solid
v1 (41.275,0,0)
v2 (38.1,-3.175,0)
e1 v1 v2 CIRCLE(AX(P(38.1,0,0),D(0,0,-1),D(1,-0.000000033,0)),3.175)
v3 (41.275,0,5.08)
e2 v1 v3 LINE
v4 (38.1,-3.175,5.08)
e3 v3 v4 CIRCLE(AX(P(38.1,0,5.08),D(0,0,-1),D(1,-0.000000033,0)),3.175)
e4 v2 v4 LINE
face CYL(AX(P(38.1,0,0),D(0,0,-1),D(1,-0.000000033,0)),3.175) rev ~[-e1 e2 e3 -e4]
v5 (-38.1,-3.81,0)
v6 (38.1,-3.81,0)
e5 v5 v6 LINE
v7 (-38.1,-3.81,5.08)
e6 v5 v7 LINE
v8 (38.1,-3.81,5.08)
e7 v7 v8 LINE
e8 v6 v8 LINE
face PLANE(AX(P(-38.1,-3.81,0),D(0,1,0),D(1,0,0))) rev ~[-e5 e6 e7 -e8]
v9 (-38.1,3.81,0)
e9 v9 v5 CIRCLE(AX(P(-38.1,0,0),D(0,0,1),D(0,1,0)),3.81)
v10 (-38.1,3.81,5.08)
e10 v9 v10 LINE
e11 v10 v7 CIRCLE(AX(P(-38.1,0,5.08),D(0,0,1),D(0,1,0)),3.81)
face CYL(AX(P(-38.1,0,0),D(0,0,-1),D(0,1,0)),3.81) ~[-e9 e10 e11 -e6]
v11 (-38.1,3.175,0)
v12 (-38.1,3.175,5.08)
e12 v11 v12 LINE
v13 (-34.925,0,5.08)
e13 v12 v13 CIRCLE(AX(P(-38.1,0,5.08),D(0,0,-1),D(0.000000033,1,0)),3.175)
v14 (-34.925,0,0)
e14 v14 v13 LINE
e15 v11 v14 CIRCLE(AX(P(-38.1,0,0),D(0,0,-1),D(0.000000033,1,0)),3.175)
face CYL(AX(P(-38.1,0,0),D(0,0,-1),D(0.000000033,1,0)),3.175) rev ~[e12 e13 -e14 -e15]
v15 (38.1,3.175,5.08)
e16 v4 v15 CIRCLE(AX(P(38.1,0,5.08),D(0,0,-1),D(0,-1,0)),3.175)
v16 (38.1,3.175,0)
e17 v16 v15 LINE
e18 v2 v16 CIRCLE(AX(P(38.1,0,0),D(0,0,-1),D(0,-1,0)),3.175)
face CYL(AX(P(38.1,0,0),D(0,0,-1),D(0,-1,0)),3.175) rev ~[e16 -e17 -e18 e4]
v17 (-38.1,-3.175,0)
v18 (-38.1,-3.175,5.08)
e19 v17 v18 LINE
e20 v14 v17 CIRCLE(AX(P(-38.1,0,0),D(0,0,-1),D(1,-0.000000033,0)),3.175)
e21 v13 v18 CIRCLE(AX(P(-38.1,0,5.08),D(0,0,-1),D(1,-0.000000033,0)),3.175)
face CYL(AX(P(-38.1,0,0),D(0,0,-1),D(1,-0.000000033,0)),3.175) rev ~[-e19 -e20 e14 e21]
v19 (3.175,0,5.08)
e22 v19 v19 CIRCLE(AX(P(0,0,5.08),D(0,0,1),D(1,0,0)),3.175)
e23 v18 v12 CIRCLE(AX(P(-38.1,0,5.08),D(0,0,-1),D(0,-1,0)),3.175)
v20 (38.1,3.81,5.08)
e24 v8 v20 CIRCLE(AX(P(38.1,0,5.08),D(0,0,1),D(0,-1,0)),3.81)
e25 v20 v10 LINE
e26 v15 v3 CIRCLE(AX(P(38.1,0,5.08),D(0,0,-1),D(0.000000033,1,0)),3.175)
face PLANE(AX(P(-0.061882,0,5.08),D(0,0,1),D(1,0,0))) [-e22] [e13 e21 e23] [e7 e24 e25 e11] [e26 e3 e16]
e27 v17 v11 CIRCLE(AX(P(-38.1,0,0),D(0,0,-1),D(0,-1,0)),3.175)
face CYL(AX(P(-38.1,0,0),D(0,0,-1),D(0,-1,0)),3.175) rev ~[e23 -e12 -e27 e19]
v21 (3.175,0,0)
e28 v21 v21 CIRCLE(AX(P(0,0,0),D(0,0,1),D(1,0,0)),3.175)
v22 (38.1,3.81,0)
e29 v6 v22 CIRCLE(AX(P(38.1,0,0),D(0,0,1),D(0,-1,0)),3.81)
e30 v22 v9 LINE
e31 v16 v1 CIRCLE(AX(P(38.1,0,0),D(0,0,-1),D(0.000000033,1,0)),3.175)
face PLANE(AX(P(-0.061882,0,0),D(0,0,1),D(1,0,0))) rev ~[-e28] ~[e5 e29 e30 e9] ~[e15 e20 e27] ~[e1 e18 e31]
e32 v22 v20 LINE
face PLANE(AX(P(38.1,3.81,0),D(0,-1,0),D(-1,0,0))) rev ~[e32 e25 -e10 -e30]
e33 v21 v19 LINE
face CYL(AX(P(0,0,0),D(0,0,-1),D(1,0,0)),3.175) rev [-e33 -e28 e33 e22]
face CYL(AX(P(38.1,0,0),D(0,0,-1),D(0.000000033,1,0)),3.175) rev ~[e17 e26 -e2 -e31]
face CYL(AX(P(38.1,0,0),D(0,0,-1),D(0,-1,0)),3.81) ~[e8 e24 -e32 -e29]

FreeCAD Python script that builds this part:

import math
import FreeCAD as App
import Part
import Sketcher

V = App.Vector
Q = App.Units.Quantity

doc = App.newDocument("Part")
params = doc.addObject("Spreadsheet::Sheet", "Params")
for row, (alias, value) in enumerate([
    ("sketch1_diameter", "0.25 in"),
    ("sketch1_width", "3 in"),
    ("sketch1_radius", "0.15 in"),
    ("pad1_length", "0.2 in"),
], start=1):
    params.set(f"A{row}", alias)
    params.set(f"B{row}", "=" + value)
    params.setAlias(f"B{row}", alias)

body = doc.addObject("PartDesign::Body", "Body")

sketch1 = body.newObject("Sketcher::SketchObject", "Sketch")
sketch1.AttachmentSupport = (doc.getObject("XY_Plane"), [""])
sketch1.MapMode = "FlatFace"
sketch1.addGeometry([
    Part.LineSegment(V(-38.1, -3.81, 0), V(38.1, -3.81, 0)),
    Part.ArcOfCircle(Part.Circle(V(38.1, 0, 0), V(0, 0, 1), 3.81), math.radians(-90), math.radians(90)),
    Part.LineSegment(V(38.1, 3.81, 0), V(-38.1, 3.81, 0)),
    Part.ArcOfCircle(Part.Circle(V(-38.1, 0, 0), V(0, 0, 1), 3.81), math.radians(90), math.radians(270)),
    Part.ArcOfCircle(Part.Circle(V(-38.1, 0, 0), V(0, 0, 1), 3.175), math.radians(0.000002), math.radians(89.999998)),
    Part.ArcOfCircle(Part.Circle(V(-38.1, 0, 0), V(0, 0, 1), 3.175), math.radians(-89.999998), math.radians(-0.000002)),
    Part.ArcOfCircle(Part.Circle(V(-38.1, 0, 0), V(0, 0, 1), 3.175), math.radians(90), math.radians(270)),
    Part.ArcOfCircle(Part.Circle(V(38.1, 0, 0), V(0, 0, 1), 3.175), math.radians(90), math.radians(270)),
    Part.ArcOfCircle(Part.Circle(V(38.1, 0, 0), V(0, 0, 1), 3.175), math.radians(0.000002), math.radians(89.999998)),
    Part.ArcOfCircle(Part.Circle(V(38.1, 0, 0), V(0, 0, 1), 3.175), math.radians(-89.999998), math.radians(-0.000002)),
    Part.Circle(V(0, 0, 0), V(0, 0, 1), 3.175),
], False)
sketch1.addConstraint([
    Sketcher.Constraint("Tangent", 0, 2, 1, 1),
    Sketcher.Constraint("Tangent", 1, 2, 2, 1),
    Sketcher.Constraint("Tangent", 2, 2, 3, 1),
    Sketcher.Constraint("Tangent", 3, 2, 0, 1),
    Sketcher.Constraint("Tangent", 4, 1, 5, 2),
    Sketcher.Constraint("Tangent", 5, 1, 6, 2),
    Sketcher.Constraint("Tangent", 6, 1, 4, 2),
    Sketcher.Constraint("Tangent", 7, 1, 8, 2),
    Sketcher.Constraint("Tangent", 8, 1, 9, 2),
    Sketcher.Constraint("Tangent", 9, 1, 7, 2),
    Sketcher.Constraint("Horizontal", 0),
    Sketcher.Constraint("Horizontal", 2),
    Sketcher.Constraint("Coincident", 10, 3, -1, 1),
    Sketcher.Constraint("Coincident", 4, 3, 3, 3),
    Sketcher.Constraint("Coincident", 7, 3, 1, 3),
    Sketcher.Constraint("Equal", 6, 7),
    Sketcher.Constraint("Equal", 9, 10),
    Sketcher.Constraint("Symmetric", 1, 3, 3, 3, -1, 1),
    Sketcher.Constraint("PointOnObject", 4, 1, -1),
    Sketcher.Constraint("PointOnObject", 8, 1, -1),
    Sketcher.Constraint("Vertical", 3, 2, 5, 1),
    Sketcher.Constraint("Vertical", 5, 1, 6, 1),
    Sketcher.Constraint("Vertical", 1, 2, 7, 1),
    Sketcher.Constraint("Vertical", 7, 1, 9, 1),
    Sketcher.Constraint("Diameter", 10, Q("0.25 in")),
    Sketcher.Constraint("DistanceX", 0, 1, 0, 2, Q("3 in")),
    Sketcher.Constraint("Radius", 1, Q("0.15 in")),
])
sketch1.setExpression("Constraints[24]", "Params.sketch1_diameter")
sketch1.setExpression("Constraints[25]", "Params.sketch1_width")
sketch1.setExpression("Constraints[26]", "Params.sketch1_radius")
pad1 = body.newObject("PartDesign::Pad", "Pad")
pad1.Profile = sketch1
pad1.setExpression("Length", "Params.pad1_length")

doc.recompute()
